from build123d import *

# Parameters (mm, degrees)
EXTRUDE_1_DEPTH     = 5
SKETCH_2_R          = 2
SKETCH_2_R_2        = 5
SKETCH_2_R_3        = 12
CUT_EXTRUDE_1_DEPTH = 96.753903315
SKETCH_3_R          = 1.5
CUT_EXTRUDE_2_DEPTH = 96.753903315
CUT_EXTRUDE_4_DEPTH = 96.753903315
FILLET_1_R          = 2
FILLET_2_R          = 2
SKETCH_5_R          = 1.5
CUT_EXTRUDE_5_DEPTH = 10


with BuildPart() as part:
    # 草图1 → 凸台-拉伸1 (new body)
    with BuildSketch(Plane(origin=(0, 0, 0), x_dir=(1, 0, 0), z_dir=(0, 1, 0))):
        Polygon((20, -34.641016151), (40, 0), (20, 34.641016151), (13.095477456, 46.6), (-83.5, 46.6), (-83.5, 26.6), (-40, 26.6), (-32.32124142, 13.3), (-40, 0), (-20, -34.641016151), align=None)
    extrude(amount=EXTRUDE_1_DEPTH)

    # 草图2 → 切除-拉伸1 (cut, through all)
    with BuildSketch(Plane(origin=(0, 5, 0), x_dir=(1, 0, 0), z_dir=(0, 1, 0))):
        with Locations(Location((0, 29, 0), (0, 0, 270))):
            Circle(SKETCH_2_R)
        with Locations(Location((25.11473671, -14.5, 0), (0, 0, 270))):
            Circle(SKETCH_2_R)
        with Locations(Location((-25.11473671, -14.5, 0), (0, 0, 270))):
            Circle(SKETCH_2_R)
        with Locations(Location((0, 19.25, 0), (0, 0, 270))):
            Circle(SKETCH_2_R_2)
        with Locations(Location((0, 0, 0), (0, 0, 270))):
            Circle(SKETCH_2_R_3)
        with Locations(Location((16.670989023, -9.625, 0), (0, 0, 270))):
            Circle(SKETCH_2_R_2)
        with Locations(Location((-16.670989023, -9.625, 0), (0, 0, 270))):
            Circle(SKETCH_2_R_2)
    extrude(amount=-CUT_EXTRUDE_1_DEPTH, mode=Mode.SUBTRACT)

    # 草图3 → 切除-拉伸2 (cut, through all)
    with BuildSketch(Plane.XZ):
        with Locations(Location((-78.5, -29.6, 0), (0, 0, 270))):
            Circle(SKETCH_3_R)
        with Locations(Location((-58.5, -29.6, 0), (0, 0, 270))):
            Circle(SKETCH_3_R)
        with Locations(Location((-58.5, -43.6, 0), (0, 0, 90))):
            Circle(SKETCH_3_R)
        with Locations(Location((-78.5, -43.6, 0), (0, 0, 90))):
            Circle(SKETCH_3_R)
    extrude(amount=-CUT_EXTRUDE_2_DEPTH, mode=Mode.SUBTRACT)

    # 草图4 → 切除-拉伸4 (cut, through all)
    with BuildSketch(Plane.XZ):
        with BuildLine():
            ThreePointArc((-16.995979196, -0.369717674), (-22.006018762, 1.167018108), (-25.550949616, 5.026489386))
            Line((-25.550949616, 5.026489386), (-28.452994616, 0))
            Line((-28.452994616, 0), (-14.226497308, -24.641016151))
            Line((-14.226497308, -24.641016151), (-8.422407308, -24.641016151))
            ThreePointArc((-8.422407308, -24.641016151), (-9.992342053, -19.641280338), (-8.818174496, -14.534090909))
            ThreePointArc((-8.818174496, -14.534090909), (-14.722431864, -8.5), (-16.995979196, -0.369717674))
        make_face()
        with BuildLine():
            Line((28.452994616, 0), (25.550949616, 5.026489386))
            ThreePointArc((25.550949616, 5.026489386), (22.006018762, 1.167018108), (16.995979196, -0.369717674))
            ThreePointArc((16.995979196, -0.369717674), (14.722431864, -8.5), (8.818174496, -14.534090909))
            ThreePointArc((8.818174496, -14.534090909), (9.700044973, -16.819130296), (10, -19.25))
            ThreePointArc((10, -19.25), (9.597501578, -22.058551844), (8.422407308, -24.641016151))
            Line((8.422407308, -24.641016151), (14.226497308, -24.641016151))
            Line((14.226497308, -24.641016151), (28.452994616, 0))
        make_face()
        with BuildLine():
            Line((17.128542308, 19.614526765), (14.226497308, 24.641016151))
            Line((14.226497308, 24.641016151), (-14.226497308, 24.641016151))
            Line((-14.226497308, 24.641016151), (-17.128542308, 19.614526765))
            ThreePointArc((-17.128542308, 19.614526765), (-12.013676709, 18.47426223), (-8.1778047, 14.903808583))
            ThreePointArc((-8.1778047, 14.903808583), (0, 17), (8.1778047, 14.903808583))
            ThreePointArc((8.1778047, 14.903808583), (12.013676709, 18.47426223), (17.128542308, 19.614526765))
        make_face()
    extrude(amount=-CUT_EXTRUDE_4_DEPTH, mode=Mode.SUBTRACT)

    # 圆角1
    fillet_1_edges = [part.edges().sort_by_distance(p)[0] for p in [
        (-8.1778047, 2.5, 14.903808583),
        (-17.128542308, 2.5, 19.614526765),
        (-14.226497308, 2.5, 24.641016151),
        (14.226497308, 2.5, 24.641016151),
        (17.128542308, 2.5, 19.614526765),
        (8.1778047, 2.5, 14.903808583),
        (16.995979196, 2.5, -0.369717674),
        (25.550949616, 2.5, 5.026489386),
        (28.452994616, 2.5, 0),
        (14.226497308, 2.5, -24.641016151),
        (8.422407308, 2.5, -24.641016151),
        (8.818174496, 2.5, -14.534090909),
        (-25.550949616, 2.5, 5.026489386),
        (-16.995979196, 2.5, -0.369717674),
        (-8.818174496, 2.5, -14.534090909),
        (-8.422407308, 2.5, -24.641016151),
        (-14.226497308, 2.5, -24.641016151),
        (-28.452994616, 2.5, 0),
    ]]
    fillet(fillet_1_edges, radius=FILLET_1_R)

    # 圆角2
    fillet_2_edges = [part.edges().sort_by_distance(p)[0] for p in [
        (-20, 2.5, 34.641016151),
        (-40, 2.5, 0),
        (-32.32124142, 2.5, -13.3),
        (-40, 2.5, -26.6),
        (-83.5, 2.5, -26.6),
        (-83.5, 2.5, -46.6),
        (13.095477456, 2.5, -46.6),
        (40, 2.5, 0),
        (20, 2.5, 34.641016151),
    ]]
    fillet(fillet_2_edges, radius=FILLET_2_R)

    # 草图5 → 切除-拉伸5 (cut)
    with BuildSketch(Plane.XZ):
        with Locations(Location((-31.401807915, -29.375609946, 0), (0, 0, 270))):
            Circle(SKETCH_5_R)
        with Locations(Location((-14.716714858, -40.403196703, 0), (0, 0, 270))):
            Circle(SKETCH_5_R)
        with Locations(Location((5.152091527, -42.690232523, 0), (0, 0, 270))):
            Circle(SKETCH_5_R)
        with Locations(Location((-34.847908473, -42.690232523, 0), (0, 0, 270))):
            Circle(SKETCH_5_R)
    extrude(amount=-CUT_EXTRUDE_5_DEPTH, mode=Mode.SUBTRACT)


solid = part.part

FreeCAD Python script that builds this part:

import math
import FreeCAD as App
import Part
import Sketcher

V = App.Vector
Q = App.Units.Quantity


def edges_at(feature, points):
    """Names of the edges that pass closest to the given points."""
    edges = feature.Shape.Edges
    near = lambda p: min(range(len(edges)), key=lambda i: edges[i].distToShape(Part.Vertex(*p))[0])
    return sorted({f"Edge{near(p) + 1}" for p in points})

doc = App.newDocument("Part")
body = doc.addObject("PartDesign::Body", "Body")

sketch1 = body.newObject("Sketcher::SketchObject", "Sketch")
sketch1.AttachmentSupport = (doc.getObject("XZ_Plane"), [""])
sketch1.MapMode = "FlatFace"
sketch1.addGeometry([
    Part.LineSegment(V(20, 35, 0), V(40, 0, 0)),
    Part.LineSegment(V(40, 0, 0), V(20, -35, 0)),
    Part.LineSegment(V(20, -35, 0), V(13, -47, 0)),
    Part.LineSegment(V(13, -47, 0), V(-84, -47, 0)),
    Part.LineSegment(V(-84, -47, 0), V(-84, -27, 0)),
    Part.LineSegment(V(-84, -27, 0), V(-40, -27, 0)),
    Part.LineSegment(V(-40, -27, 0), V(-32, -13, 0)),
    Part.LineSegment(V(-32, -13, 0), V(-40, 0, 0)),
    Part.LineSegment(V(-40, 0, 0), V(-20, 35, 0)),
    Part.LineSegment(V(-20, 35, 0), V(20, 35, 0)),
], False)
sketch1.addConstraint([
    Sketcher.Constraint("Coincident", 0, 2, 1, 1),
    Sketcher.Constraint("Coincident", 1, 2, 2, 1),
    Sketcher.Constraint("Coincident", 2, 2, 3, 1),
    Sketcher.Constraint("Coincident", 3, 2, 4, 1),
    Sketcher.Constraint("Coincident", 4, 2, 5, 1),
    Sketcher.Constraint("Coincident", 5, 2, 6, 1),
    Sketcher.Constraint("Coincident", 6, 2, 7, 1),
    Sketcher.Constraint("Coincident", 7, 2, 8, 1),
    Sketcher.Constraint("Coincident", 8, 2, 9, 1),
    Sketcher.Constraint("Coincident", 9, 2, 0, 1),
    Sketcher.Constraint("Horizontal", 3),
    Sketcher.Constraint("Vertical", 4),
    Sketcher.Constraint("Horizontal", 5),
    Sketcher.Constraint("Horizontal", 9),
    Sketcher.Constraint("Symmetric", 0, 2, 7, 2, -1, 1),
    Sketcher.Constraint("Symmetric", 1, 2, 8, 2, -1, 1),
    Sketcher.Constraint("PointOnObject", 0, 2, -1),
    Sketcher.Constraint("Parallel", 1, 2),
    Sketcher.Constraint("Parallel", 2, 6),
    Sketcher.Constraint("Parallel", 0, 7),
    Sketcher.Constraint("Vertical", 5, 2, 7, 2),
    Sketcher.Constraint("Vertical", 1, 2, 9, 2),
    Sketcher.Constraint("DistanceX", 9, 1, 9, 2, 40.0),
    Sketcher.Constraint("DistanceY", 4, 1, 4, 2, 20.0),
    Sketcher.Constraint("Angle", 0, Q("-60 deg")),
    Sketcher.Constraint("Distance", 0, 40.0),
    Sketcher.Constraint("DistanceX", 5, 1, 5, 2, 43.5),
    Sketcher.Constraint("DistanceY", 2, 2, -1, 1, 46.6),
])
pad1 = body.newObject("PartDesign::Pad", "Pad")
pad1.Profile = sketch1
pad1.Length = 5
pad1.Reversed = True

sketch2 = body.newObject("Sketcher::SketchObject", "Sketch001")
sketch2.AttachmentSupport = (doc.getObject("XZ_Plane"), [""])
sketch2.MapMode = "FlatFace"
sketch2.AttachmentOffset = App.Placement(V(0, 0, -5), App.Rotation())
sketch2.addGeometry([
    Part.Circle(V(0, -29, 0), V(0, 0, 1), 2),
    Part.Circle(V(25.1, 14.5, 0), V(0, 0, 1), 2),
    Part.Circle(V(-25.1, 14.5, 0), V(0, 0, 1), 2),
    Part.Circle(V(0, -19.2, 0), V(0, 0, 1), 5),
    Part.Circle(V(0, 0, 0), V(0, 0, 1), 12),
    Part.Circle(V(16.7, 9.6, 0), V(0, 0, 1), 5),
    Part.Circle(V(-16.7, 9.6, 0), V(0, 0, 1), 5),
], False)
sketch2.addConstraint([
    Sketcher.Constraint("Coincident", 4, 3, -1, 1),
    Sketcher.Constraint("Equal", 0, 1),
    Sketcher.Constraint("Equal", 1, 2),
    Sketcher.Constraint("Equal", 3, 5),
    Sketcher.Constraint("Equal", 5, 6),
    Sketcher.Constraint("Symmetric", 1, 3, 2, 3, -2),
    Sketcher.Constraint("Symmetric", 5, 3, 6, 3, -2),
    Sketcher.Constraint("PointOnObject", 0, 3, -2),
    Sketcher.Constraint("PointOnObject", 3, 3, -2),
    Sketcher.Constraint("Diameter", 0, 4.0),
    Sketcher.Constraint("Diameter", 3, 10.0),
    Sketcher.Constraint("Diameter", 4, 24.0),
    Sketcher.Constraint("DistanceY", 0, 3, -1, 1, 29.0),
    Sketcher.Constraint("DistanceY", -1, 1, 1, 3, 14.5),
    Sketcher.Constraint("DistanceY", 3, 3, -1, 1, 19.25),
    Sketcher.Constraint("DistanceY", -1, 1, 5, 3, 9.625),
    Sketcher.Constraint("DistanceX", -1, 1, 5, 3, 16.670989),
    Sketcher.Constraint("DistanceX", -1, 1, 1, 3, 25.114737),
])
pocket1 = body.newObject("PartDesign::Pocket", "Pocket")
pocket1.Profile = sketch2
pocket1.Type = "ThroughAll"
pocket1.Reversed = True

sketch3 = body.newObject("Sketcher::SketchObject", "Sketch002")
sketch3.AttachmentSupport = (doc.getObject("XZ_Plane"), [""])
sketch3.MapMode = "FlatFace"
sketch3.addGeometry([
    Part.Circle(V(-78.5, -29.6, 0), V(0, 0, 1), 1.5),
    Part.Circle(V(-58.5, -29.6, 0), V(0, 0, 1), 1.5),
    Part.Circle(V(-58.5, -43.6, 0), V(0, 0, 1), 1.5),
    Part.Circle(V(-78.5, -43.6, 0), V(0, 0, 1), 1.5),
], False)
sketch3.addConstraint([
    Sketcher.Constraint("Equal", 0, 1),
    Sketcher.Constraint("Equal", 1, 2),
    Sketcher.Constraint("Equal", 2, 3),
    Sketcher.Constraint("Horizontal", 0, 3, 1, 3),
    Sketcher.Constraint("Horizontal", 2, 3, 3, 3),
    Sketcher.Constraint("Vertical", 1, 3, 2, 3),
    Sketcher.Constraint("Vertical", 0, 3, 3, 3),
    Sketcher.Constraint("Diameter", 0, 3.0),
    Sketcher.Constraint("DistanceX", 0, 3, 1, 3, 20.0),
    Sketcher.Constraint("DistanceY", 2, 3, 1, 3, 14.0),
    Sketcher.Constraint("DistanceX", 0, 3, -1, 1, 78.5),
    Sketcher.Constraint("DistanceY", 0, 3, -1, 1, 29.6),
])
pocket2 = body.newObject("PartDesign::Pocket", "Pocket001")
pocket2.Profile = sketch3
pocket2.Type = "ThroughAll"

sketch4 = body.newObject("Sketcher::SketchObject", "Sketch003")
sketch4.AttachmentSupport = (doc.getObject("XZ_Plane"), [""])
sketch4.MapMode = "FlatFace"
sketch4.addGeometry([
    Part.ArcOfCircle(Part.Circle(V(-16.7, 9.6, 0), V(0, 0, 1), 10), math.radians(-153), math.radians(-92)),
    Part.LineSegment(V(-25.6, 5, 0), V(-28.5, 0, 0)),
    Part.LineSegment(V(-28.5, 0, 0), V(-14.2, -24.6, 0)),
    Part.LineSegment(V(-14.2, -24.6, 0), V(-8.4, -24.6, 0)),
    Part.ArcOfCircle(Part.Circle(V(0, -19.2, 0), V(0, 0, 1), 10), math.radians(152), math.radians(213)),
    Part.ArcOfCircle(Part.Circle(V(0, 0, 0), V(0, 0, 1), 17), math.radians(-179), math.radians(-121)),
    Part.LineSegment(V(28.5, 0, 0), V(25.6, 5, 0)),
    Part.ArcOfCircle(Part.Circle(V(16.7, 9.6, 0), V(0, 0, 1), 10), math.radians(-88), math.radians(-27)),
    Part.ArcOfCircle(Part.Circle(V(0, 0, 0), V(0, 0, 1), 17), math.radians(-59), math.radians(-1)),
    Part.ArcOfCircle(Part.Circle(V(0, -19.3, 0), V(0, 0, 1), 10), math.radians(0), math.radians(28)),
    Part.ArcOfCircle(Part.Circle(V(0, -19.2, 0), V(0, 0, 1), 10), math.radians(-33), math.radians(0)),
    Part.LineSegment(V(8.4, -24.6, 0), V(14.2, -24.6, 0)),
    Part.LineSegment(V(14.2, -24.6, 0), V(28.5, 0, 0)),
    Part.LineSegment(V(17.1, 19.6, 0), V(14.2, 24.6, 0)),
    Part.LineSegment(V(14.2, 24.6, 0), V(-14.2, 24.6, 0)),
    Part.LineSegment(V(-14.2, 24.6, 0), V(-17.1, 19.6, 0)),
    Part.ArcOfCircle(Part.Circle(V(-16.7, 9.6, 0), V(0, 0, 1), 10), math.radians(32), math.radians(93)),
    Part.ArcOfCircle(Part.Circle(V(0, 0, 0), V(0, 0, 1), 17), math.radians(61), math.radians(119)),
    Part.ArcOfCircle(Part.Circle(V(16.7, 9.6, 0), V(0, 0, 1), 10), math.radians(87), math.radians(148)),
], False)
sketch4.addConstraint([
    Sketcher.Constraint("Coincident", 0, 1, 1, 1),
    Sketcher.Constraint("Coincident", 1, 2, 2, 1),
    Sketcher.Constraint("Coincident", 2, 2, 3, 1),
    Sketcher.Constraint("Coincident", 3, 2, 4, 2),
    Sketcher.Constraint("Coincident", 4, 1, 5, 2),
    Sketcher.Constraint("Coincident", 5, 1, 0, 2),
    Sketcher.Constraint("Coincident", 6, 2, 7, 2),
    Sketcher.Constraint("Coincident", 7, 1, 8, 2),
    Sketcher.Constraint("Coincident", 8, 1, 9, 2),
    Sketcher.Constraint("Tangent", 9, 1, 10, 2),
    Sketcher.Constraint("Coincident", 10, 1, 11, 1),
    Sketcher.Constraint("Coincident", 11, 2, 12, 1),
    Sketcher.Constraint("Coincident", 12, 2, 6, 1),
    Sketcher.Constraint("Coincident", 13, 2, 14, 1),
    Sketcher.Constraint("Coincident", 14, 2, 15, 1),
    Sketcher.Constraint("Coincident", 15, 2, 16, 2),
    Sketcher.Constraint("Coincident", 16, 1, 17, 2),
    Sketcher.Constraint("Coincident", 17, 1, 18, 2),
    Sketcher.Constraint("Coincident", 18, 1, 13, 1),
    Sketcher.Constraint("Horizontal", 3),
    Sketcher.Constraint("Horizontal", 11),
    Sketcher.Constraint("Horizontal", 14),
    Sketcher.Constraint("Coincident", 5, 3, -1, 1),
    Sketcher.Constraint("Coincident", 8, 3, -1, 1),
    Sketcher.Constraint("Coincident", 17, 3, -1, 1),
    Sketcher.Constraint("Coincident", 9, 3, 4, 3),
    Sketcher.Constraint("Coincident", 16, 3, 0, 3),
    Sketcher.Constraint("Coincident", 18, 3, 7, 3),
    Sketcher.Constraint("Equal", 0, 4),
    Sketcher.Constraint("Equal", 4, 7),
    Sketcher.Constraint("Equal", 5, 8),
    Sketcher.Constraint("Equal", 7, 9),
    Sketcher.Constraint("Equal", 9, 10),
    Sketcher.Constraint("Equal", 10, 16),
    Sketcher.Constraint("Equal", 8, 17),
    Sketcher.Constraint("Equal", 16, 18),
    Sketcher.Constraint("Symmetric", 1, 2, 12, 2, -1, 1),
    Sketcher.Constraint("Symmetric", 2, 2, 13, 2, -1, 1),
    Sketcher.Constraint("Symmetric", 11, 2, 14, 2, -1, 1),
    Sketcher.Constraint("Symmetric", 0, 3, 7, 3, -2),
    Sketcher.Constraint("PointOnObject", 4, 3, -2),
    Sketcher.Constraint("PointOnObject", 1, 2, -1),
    Sketcher.Constraint("Parallel", 2, 6),
    Sketcher.Constraint("Parallel", 1, 12),
    Sketcher.Constraint("Parallel", 6, 13),
    Sketcher.Constraint("Parallel", 12, 15),
    Sketcher.Constraint("Horizontal", 0, 1, 6, 2),
    Sketcher.Constraint("Horizontal", 10, 3, 9, 1),
    Sketcher.Constraint("Equal", 6, 13),
    Sketcher.Constraint("Radius", 0, 10.0),
    Sketcher.Constraint("Radius", 5, 17.0),
    Sketcher.Constraint("Angle", 1, Q("-120 deg")),
    Sketcher.Constraint("DistanceY", 4, 3, -1, 1, 19.25),
    Sketcher.Constraint("DistanceY", -1, 1, 0, 3, 9.625),
    Sketcher.Constraint("DistanceX", 3, 1, 3, 2, 5.80409),
    Sketcher.Constraint("Distance", 1, 5.80409),
])
pocket3 = body.newObject("PartDesign::Pocket", "Pocket002")
pocket3.Profile = sketch4
pocket3.Type = "ThroughAll"
doc.recompute()

fillet = body.newObject("PartDesign::Fillet", "Fillet")
fillet.Base = (pocket3, edges_at(pocket3, [
    (-8.178, 2.5, 14.904),
    (-17.129, 2.5, 19.615),
    (-14.226, 2.5, 24.641),
    (14.226, 2.5, 24.641),
    (17.129, 2.5, 19.615),
    (8.178, 2.5, 14.904),
    (16.996, 2.5, -0.37),
    (25.551, 2.5, 5.026),
    (28.453, 2.5, 0),
    (14.226, 2.5, -24.641),
    (8.422, 2.5, -24.641),
    (8.818, 2.5, -14.534),
    (-25.551, 2.5, 5.026),
    (-16.996, 2.5, -0.37),
    (-8.818, 2.5, -14.534),
    (-8.422, 2.5, -24.641),
    (-14.226, 2.5, -24.641),
    (-28.453, 2.5, 0),
]))
fillet.Radius = 2
doc.recompute()

fillet2 = body.newObject("PartDesign::Fillet", "Fillet001")
fillet2.Base = (fillet, edges_at(fillet, [
    (-20, 2.5, 34.641),
    (-40, 2.5, 0),
    (-32.321, 2.5, -13.3),
    (-40, 2.5, -26.6),
    (-83.5, 2.5, -26.6),
    (-83.5, 2.5, -46.6),
    (13.095, 2.5, -46.6),
    (40, 2.5, 0),
    (20, 2.5, 34.641),
]))
fillet2.Radius = 2

sketch5 = body.newObject("Sketcher::SketchObject", "Sketch004")
sketch5.AttachmentSupport = (doc.getObject("XZ_Plane"), [""])
sketch5.MapMode = "FlatFace"
sketch5.addGeometry([
    Part.Circle(V(-31.4, -29.4, 0), V(0, 0, 1), 1.5),
    Part.Circle(V(-14.7, -40.4, 0), V(0, 0, 1), 1.5),
    Part.Circle(V(5.2, -42.7, 0), V(0, 0, 1), 1.5),
    Part.Circle(V(-34.8, -42.7, 0), V(0, 0, 1), 1.5),
], False)
sketch5.addConstraint([
    Sketcher.Constraint("Equal", 0, 1),
    Sketcher.Constraint("Equal", 1, 2),
    Sketcher.Constraint("Equal", 2, 3),
    Sketcher.Constraint("Horizontal", 2, 3, 3, 3),
    Sketcher.Constraint("Diameter", 0, 3.0),
    Sketcher.Constraint("DistanceX", 3, 3, 2, 3, 40.0),
    Sketcher.Constraint("DistanceX", 0, 3, 2, 3, 36.553899),
    Sketcher.Constraint("DistanceY", 0, 3, -1, 1, 29.37561),
    Sketcher.Constraint("DistanceX", -1, 1, 2, 3, 5.152092),
    Sketcher.Constraint("DistanceX", 1, 3, -1, 1, 14.716715),
    Sketcher.Constraint("DistanceY", 1, 3, -1, 1, 40.403197),
    Sketcher.Constraint("DistanceY", 2, 3, -1, 1, 42.690233),
])
pocket4 = body.newObject("PartDesign::Pocket", "Pocket003")
pocket4.Profile = sketch5
pocket4.Length = 10

doc.recompute()
